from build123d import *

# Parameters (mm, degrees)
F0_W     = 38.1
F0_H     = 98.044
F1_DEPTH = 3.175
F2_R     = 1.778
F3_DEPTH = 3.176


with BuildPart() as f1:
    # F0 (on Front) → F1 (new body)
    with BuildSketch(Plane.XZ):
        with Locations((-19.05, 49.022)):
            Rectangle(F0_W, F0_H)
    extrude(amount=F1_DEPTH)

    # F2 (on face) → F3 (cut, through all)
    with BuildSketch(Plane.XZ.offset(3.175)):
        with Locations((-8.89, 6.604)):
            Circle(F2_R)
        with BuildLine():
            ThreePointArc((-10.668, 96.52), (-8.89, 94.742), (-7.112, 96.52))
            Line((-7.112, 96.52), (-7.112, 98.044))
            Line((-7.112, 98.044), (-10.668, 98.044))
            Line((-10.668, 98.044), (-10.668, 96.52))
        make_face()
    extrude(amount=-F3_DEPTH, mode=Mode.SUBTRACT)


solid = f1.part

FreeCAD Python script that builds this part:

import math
import FreeCAD as App
import Part
import Sketcher

V = App.Vector
Q = App.Units.Quantity


def add_polygon(sketch, points):
    """Adds a closed chain of lines whose ends are joined by coincident constraints."""
    first, n = sketch.GeometryCount, len(points)
    for a, b in zip(points, points[1:] + points[:1]):
        sketch.addGeometry(Part.LineSegment(App.Vector(*a, 0), App.Vector(*b, 0)), False)
    for i in range(n):
        sketch.addConstraint(Sketcher.Constraint("Coincident", first + i, 2, first + (i + 1) % n, 1))

doc = App.newDocument("Part")
params = doc.addObject("Spreadsheet::Sheet", "Params")
for row, (alias, value) in enumerate([
    ("sketch1_width", "1.5 in"),
    ("sketch1_height", "3.86 in"),
    ("pad1_length", "0.125 in"),
    ("sketch2_diameter", "0.14 in"),
    ("sketch2_height", "0.06 in"),
], start=1):
    params.set(f"A{row}", alias)
    params.set(f"B{row}", "=" + value)
    params.setAlias(f"B{row}", alias)

body = doc.addObject("PartDesign::Body", "Body")

sketch1 = doc.addObject("Sketcher::SketchObject", "Sketch")
body.addObject(sketch1)
sketch1.AttachmentSupport = (doc.XZ_Plane, [""])
sketch1.MapMode = "FlatFace"
add_polygon(sketch1, [(-38, 98), (-38, 0), (0, 0), (0, 98)])
sketch1.addConstraint([
    Sketcher.Constraint("Vertical", 0),
    Sketcher.Constraint("Horizontal", 1),
    Sketcher.Constraint("Vertical", 2),
    Sketcher.Constraint("Horizontal", 3),
    Sketcher.Constraint("Coincident", 1, 2, -1, 1),
    Sketcher.Constraint("DistanceX", 1, 1, 1, 2, Q("1.5 in")),
    Sketcher.Constraint("DistanceY", 0, 2, 0, 1, Q("3.86 in")),
])
sketch1.setExpression("Constraints[9]", "Params.sketch1_width")
sketch1.setExpression("Constraints[10]", "Params.sketch1_height")
pad1 = doc.addObject("PartDesign::Pad", "Pad")
body.addObject(pad1)
pad1.Profile = sketch1
pad1.setExpression("Length", "Params.pad1_length")

sketch2 = doc.addObject("Sketcher::SketchObject", "Sketch001")
body.addObject(sketch2)
sketch2.AttachmentSupport = (doc.XZ_Plane, [""])
sketch2.MapMode = "FlatFace"
sketch2.AttachmentOffset = App.Placement(V(0, 0, 0.125 * 25.4), App.Rotation())
sketch2.addGeometry([
    Part.Circle(V(-8.9, 6.6, 0), V(0, 0, 1), 1.8),
    Part.ArcOfCircle(Part.Circle(V(-8.9, 96.5, 0), V(0, 0, 1), 1.8), math.radians(180), math.radians(360)),
    Part.LineSegment(V(-7.1, 96.5, 0), V(-7.1, 98, 0)),
    Part.LineSegment(V(-7.1, 98, 0), V(-10.7, 98, 0)),
    Part.LineSegment(V(-10.7, 98, 0), V(-10.7, 96.5, 0)),
], False)
sketch2.addConstraint([
    Sketcher.Constraint("Tangent", 1, 2, 2, 1),
    Sketcher.Constraint("Coincident", 2, 2, 3, 1),
    Sketcher.Constraint("Coincident", 3, 2, 4, 1),
    Sketcher.Constraint("Tangent", 4, 2, 1, 1),
    Sketcher.Constraint("Vertical", 2),
    Sketcher.Constraint("Horizontal", 3),
    Sketcher.Constraint("Vertical", 4),
    Sketcher.Constraint("Equal", 0, 1),
    Sketcher.Constraint("Vertical", 0, 3, 1, 3),
    Sketcher.Constraint("Diameter", 0, Q("0.14 in")),
    Sketcher.Constraint("DistanceY", 2, 1, 2, 2, Q("0.06 in")),
    Sketcher.Constraint("DistanceY", -1, 1, 1, 3, Q("3.8 in")),
    Sketcher.Constraint("DistanceY", 0, 3, 2, 2, Q("3.6 in")),
    Sketcher.Constraint("DistanceX", 0, 3, -1, 1, Q("0.35 in")),
])
sketch2.setExpression("Constraints[9]", "Params.sketch2_diameter")
sketch2.setExpression("Constraints[10]", "Params.sketch2_height")
pocket1 = doc.addObject("PartDesign::Pocket", "Pocket")
body.addObject(pocket1)
pocket1.Profile = sketch2
pocket1.Type = "ThroughAll"

doc.recompute()
